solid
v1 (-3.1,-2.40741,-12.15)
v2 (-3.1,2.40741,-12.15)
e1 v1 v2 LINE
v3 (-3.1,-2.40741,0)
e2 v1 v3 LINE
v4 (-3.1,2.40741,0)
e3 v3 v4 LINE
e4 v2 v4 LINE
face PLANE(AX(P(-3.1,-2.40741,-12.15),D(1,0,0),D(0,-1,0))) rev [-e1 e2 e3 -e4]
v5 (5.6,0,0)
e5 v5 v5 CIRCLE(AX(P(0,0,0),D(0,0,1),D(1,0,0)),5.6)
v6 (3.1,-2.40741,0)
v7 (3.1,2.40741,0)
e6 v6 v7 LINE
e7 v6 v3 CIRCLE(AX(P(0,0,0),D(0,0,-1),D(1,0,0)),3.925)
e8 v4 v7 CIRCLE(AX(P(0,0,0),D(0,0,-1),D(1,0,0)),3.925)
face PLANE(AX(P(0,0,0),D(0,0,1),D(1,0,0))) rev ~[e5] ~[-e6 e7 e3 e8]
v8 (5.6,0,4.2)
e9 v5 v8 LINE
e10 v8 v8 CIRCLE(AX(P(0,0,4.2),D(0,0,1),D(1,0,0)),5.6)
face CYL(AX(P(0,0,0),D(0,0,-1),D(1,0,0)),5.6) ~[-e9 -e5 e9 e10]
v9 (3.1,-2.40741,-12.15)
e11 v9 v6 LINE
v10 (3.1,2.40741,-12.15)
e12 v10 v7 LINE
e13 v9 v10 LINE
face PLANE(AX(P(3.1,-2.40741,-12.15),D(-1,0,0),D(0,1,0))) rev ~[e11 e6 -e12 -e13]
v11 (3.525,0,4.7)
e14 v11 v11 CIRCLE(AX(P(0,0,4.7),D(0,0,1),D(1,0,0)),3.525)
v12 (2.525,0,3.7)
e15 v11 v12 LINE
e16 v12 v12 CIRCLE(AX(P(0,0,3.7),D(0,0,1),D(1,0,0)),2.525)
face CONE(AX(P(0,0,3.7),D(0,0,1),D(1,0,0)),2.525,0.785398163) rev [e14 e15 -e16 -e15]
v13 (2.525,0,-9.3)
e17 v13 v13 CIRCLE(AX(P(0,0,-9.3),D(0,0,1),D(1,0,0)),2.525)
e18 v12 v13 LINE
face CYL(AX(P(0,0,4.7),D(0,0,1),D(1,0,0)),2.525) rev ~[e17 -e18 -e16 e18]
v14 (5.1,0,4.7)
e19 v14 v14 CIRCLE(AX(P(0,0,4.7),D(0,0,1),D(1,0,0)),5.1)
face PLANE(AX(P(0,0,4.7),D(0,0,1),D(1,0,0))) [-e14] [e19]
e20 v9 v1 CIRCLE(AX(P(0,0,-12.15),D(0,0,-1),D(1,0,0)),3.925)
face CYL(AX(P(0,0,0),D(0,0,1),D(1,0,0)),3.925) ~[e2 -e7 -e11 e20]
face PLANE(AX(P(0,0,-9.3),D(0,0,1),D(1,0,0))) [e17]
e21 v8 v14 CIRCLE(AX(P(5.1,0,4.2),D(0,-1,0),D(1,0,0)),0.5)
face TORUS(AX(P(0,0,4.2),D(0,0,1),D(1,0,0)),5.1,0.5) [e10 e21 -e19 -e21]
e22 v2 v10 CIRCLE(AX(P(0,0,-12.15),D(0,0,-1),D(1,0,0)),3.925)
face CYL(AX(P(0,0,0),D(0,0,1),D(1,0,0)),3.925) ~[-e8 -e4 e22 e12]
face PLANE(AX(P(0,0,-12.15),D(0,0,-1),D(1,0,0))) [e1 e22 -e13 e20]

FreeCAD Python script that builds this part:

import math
import FreeCAD as App
import Part
import Sketcher
from FreeCAD import Vector
Q = App.Units.Quantity


def edges_at(feature, points):
    """Names of the edges that pass closest to the given points."""
    edges = feature.Shape.Edges
    near = lambda p: min(range(len(edges)), key=lambda i: edges[i].distToShape(Part.Vertex(*p))[0])
    return sorted({f"Edge{near(p) + 1}" for p in points})

doc = App.newDocument("Part")
params = doc.addObject("Spreadsheet::Sheet", "Params")
for row, (alias, value) in enumerate([
    ("sketch1_diameter", "11.2 mm"),
    ("pad1_length", "4.7 mm"),
    ("sketch2_diameter", "7.85 mm"),
    ("pad2_length", "12.15 mm"),
    ("sketch3_diameter", "5.05 mm"),
    ("pocket1_length", "14 mm"),
    ("fillet_radius", "0.5 mm"),
    ("chamfer_size", "1 mm"),
    ("pocket2_length", "12.15 mm"),
], start=1):
    params.set(f"A{row}", alias)
    params.set(f"B{row}", "=" + value)
    params.setAlias(f"B{row}", alias)

body = doc.addObject("PartDesign::Body", "Body")

sketch1 = body.newObject("Sketcher::SketchObject", "Sketch")
sketch1.AttachmentSupport = (doc.getObject("XY_Plane"), [""])
sketch1.MapMode = "FlatFace"
sketch1.addGeometry(Part.Circle(Vector(0, 0, 0), Vector(0, 0, 1), 6), False)
sketch1.addConstraint([
    Sketcher.Constraint("Coincident", 0, 3, -1, 1),
    Sketcher.Constraint("Diameter", 0, Q("11.2 mm")),
])
sketch1.setExpression("Constraints[1]", "Params.sketch1_diameter")
pad1 = body.newObject("PartDesign::Pad", "Pad")
pad1.Profile = sketch1
pad1.setExpression("Length", "Params.pad1_length")

sketch2 = body.newObject("Sketcher::SketchObject", "Sketch001")
sketch2.AttachmentSupport = (doc.getObject("XY_Plane"), [""])
sketch2.MapMode = "FlatFace"
sketch2.addGeometry(Part.Circle(Vector(0, 0, 0), Vector(0, 0, 1), 3.9), False)
sketch2.addConstraint([
    Sketcher.Constraint("Coincident", 0, 3, -1, 1),
    Sketcher.Constraint("Diameter", 0, Q("7.85 mm")),
])
sketch2.setExpression("Constraints[1]", "Params.sketch2_diameter")
pad2 = body.newObject("PartDesign::Pad", "Pad001")
pad2.Profile = sketch2
pad2.setExpression("Length", "Params.pad2_length")
pad2.Reversed = True

sketch3 = body.newObject("Sketcher::SketchObject", "Sketch002")
sketch3.AttachmentSupport = (doc.getObject("XY_Plane"), [""])
sketch3.MapMode = "FlatFace"
sketch3.AttachmentOffset = App.Placement(Vector(0, 0, 4.7), App.Rotation())
sketch3.addGeometry(Part.Circle(Vector(0, 0, 0), Vector(0, 0, 1), 2.5), False)
sketch3.addConstraint([
    Sketcher.Constraint("Coincident", 0, 3, -1, 1),
    Sketcher.Constraint("Diameter", 0, Q("5.05 mm")),
])
sketch3.setExpression("Constraints[1]", "Params.sketch3_diameter")
pocket1 = body.newObject("PartDesign::Pocket", "Pocket")
pocket1.Profile = sketch3
pocket1.setExpression("Length", "Params.pocket1_length")
doc.recompute()

fillet = body.newObject("PartDesign::Fillet", "Fillet")
fillet.Base = (pocket1, edges_at(pocket1, [(-5.6, 0, 4.7)]))
fillet.setExpression("Radius", "Params.fillet_radius")
doc.recompute()

chamfer = body.newObject("PartDesign::Chamfer", "Chamfer")
chamfer.Base = (fillet, edges_at(fillet, [(-2.525, 0, 4.7)]))
chamfer.setExpression("Size", "Params.chamfer_size")

sketch4 = body.newObject("Sketcher::SketchObject", "Sketch003")
sketch4.AttachmentSupport = (doc.getObject("XY_Plane"), [""])
sketch4.MapMode = "FlatFace"
sketch4.AttachmentOffset = App.Placement(Vector(0, 0, -12.15), App.Rotation())
sketch4.addGeometry([
    Part.LineSegment(Vector(3.1, -2.4, 0), Vector(3.1, 2.4, 0)),
    Part.ArcOfCircle(Part.Circle(Vector(0, 0, 0), Vector(0, 0, 1), 3.9), math.radians(-38), math.radians(38)),
], False)
sketch4.addConstraint([
    Sketcher.Constraint("Coincident", 0, 1, 1, 1),
    Sketcher.Constraint("Coincident", 1, 2, 0, 2),
    Sketcher.Constraint("Vertical", 0),
    Sketcher.Constraint("Coincident", 1, 3, -1, 1),
    Sketcher.Constraint("Radius", 1, Q("3.924999 mm")),
    Sketcher.Constraint("DistanceX", -1, 1, 0, 1, Q("3.1 mm")),
])
pocket2 = body.newObject("PartDesign::Pocket", "Pocket001")
pocket2.Profile = sketch4
pocket2.setExpression("Length", "Params.pocket2_length")
pocket2.Reversed = True
doc.recompute()

mirrored = body.newObject("PartDesign::Mirrored", "Mirrored")
mirrored.Originals = [pocket2]
mirrored.MirrorPlane = (doc.getObject("YZ_Plane"), [""])
body.Tip = mirrored

doc.recompute()
